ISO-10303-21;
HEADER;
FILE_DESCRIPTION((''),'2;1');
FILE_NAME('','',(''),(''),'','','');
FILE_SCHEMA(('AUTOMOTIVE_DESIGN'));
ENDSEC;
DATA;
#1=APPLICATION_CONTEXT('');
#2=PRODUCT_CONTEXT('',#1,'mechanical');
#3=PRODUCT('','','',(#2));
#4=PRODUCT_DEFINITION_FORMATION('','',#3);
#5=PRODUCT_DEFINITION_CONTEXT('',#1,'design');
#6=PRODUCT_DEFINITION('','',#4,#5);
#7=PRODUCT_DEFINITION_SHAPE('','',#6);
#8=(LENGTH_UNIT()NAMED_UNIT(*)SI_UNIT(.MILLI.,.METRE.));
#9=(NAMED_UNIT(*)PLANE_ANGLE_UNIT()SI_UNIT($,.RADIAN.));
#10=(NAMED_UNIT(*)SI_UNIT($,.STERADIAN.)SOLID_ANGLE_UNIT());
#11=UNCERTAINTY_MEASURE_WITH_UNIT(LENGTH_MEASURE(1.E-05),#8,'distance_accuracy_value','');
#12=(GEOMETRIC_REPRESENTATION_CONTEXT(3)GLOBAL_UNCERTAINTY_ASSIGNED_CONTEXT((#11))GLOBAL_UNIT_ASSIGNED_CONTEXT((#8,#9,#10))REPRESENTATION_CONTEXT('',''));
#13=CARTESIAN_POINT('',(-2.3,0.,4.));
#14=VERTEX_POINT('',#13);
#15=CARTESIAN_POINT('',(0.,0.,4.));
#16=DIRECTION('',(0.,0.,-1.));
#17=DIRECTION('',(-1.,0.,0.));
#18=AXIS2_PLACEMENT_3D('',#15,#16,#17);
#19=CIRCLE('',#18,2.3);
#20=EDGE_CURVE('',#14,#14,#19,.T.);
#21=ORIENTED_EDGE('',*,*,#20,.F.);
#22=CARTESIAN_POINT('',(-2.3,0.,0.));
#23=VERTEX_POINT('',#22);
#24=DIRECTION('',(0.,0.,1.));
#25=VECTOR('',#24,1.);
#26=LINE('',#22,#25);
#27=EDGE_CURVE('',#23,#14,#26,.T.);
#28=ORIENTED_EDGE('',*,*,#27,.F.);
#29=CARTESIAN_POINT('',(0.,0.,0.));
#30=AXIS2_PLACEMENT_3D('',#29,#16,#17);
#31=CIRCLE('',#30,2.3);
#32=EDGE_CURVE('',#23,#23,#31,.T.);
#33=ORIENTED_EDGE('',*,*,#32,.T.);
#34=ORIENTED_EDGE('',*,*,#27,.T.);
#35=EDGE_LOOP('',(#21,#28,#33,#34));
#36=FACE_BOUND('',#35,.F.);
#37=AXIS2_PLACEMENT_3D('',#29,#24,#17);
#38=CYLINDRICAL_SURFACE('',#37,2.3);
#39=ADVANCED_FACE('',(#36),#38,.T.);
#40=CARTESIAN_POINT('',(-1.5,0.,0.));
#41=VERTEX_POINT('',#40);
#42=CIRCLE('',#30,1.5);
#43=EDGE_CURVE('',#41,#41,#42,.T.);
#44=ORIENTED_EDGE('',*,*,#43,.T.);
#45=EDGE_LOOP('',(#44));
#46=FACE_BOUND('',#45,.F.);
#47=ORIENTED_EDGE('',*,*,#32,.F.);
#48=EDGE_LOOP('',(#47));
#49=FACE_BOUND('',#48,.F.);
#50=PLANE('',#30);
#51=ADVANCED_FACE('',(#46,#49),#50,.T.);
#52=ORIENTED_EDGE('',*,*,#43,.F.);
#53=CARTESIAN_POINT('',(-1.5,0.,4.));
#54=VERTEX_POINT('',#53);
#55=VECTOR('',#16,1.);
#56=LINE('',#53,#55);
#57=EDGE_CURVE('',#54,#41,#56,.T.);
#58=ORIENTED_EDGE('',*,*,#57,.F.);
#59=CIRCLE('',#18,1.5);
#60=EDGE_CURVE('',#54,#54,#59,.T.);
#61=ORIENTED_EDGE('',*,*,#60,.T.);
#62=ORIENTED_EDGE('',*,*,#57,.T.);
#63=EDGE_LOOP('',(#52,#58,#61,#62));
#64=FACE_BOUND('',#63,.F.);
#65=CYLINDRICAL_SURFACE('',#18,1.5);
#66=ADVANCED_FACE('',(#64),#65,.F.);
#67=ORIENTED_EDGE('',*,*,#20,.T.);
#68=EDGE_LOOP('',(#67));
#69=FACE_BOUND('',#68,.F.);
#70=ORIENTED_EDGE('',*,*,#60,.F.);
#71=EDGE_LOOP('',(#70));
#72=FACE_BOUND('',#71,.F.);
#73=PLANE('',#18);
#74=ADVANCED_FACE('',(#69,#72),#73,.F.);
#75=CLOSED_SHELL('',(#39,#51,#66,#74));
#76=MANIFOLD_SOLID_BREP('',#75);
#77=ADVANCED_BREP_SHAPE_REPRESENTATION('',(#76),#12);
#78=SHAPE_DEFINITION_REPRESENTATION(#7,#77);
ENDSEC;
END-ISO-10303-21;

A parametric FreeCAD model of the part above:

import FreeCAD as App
import Part
import Sketcher

V = App.Vector


def add_polygon(sketch, points):
    """Adds a closed chain of lines whose ends are joined by coincident constraints."""
    first, n = sketch.GeometryCount, len(points)
    for a, b in zip(points, points[1:] + points[:1]):
        sketch.addGeometry(Part.LineSegment(App.Vector(*a, 0), App.Vector(*b, 0)), False)
    for i in range(n):
        sketch.addConstraint(Sketcher.Constraint("Coincident", first + i, 2, first + (i + 1) % n, 1))

doc = App.newDocument("Part")
body = doc.addObject("PartDesign::Body", "Body")

# Sketch on XZ plane
sketch1 = body.newObject("Sketcher::SketchObject", "Sketch")
sketch1.AttachmentSupport = (doc.getObject("XZ_Plane"), [""])
sketch1.MapMode = "FlatFace"
add_polygon(sketch1, [(-2.3, 4), (-1.5, 4), (-1.5, 0), (-2.3, 0)])  # lines 0-3
sketch1.addConstraint(Sketcher.Constraint("Horizontal", 0))
sketch1.addConstraint(Sketcher.Constraint("Vertical", 1))
sketch1.addConstraint(Sketcher.Constraint("Horizontal", 2))
sketch1.addConstraint(Sketcher.Constraint("Vertical", 3))
sketch1.addConstraint(Sketcher.Constraint("PointOnObject", 1, 2, -1))
sketch1.addConstraint(Sketcher.Constraint("DistanceY", 1, 2, 1, 1, 4.0))
sketch1.addConstraint(Sketcher.Constraint("DistanceX", 0, 1, 0, 2, 0.8))
sketch1.addConstraint(Sketcher.Constraint("DistanceX", 0, 2, -1, 1, 1.5))
revolution = body.newObject("PartDesign::Revolution", "Revolution")
revolution.Profile = sketch1
revolution.ReferenceAxis = (sketch1, ["V_Axis"])
revolution.Angle = 360

doc.recompute()
